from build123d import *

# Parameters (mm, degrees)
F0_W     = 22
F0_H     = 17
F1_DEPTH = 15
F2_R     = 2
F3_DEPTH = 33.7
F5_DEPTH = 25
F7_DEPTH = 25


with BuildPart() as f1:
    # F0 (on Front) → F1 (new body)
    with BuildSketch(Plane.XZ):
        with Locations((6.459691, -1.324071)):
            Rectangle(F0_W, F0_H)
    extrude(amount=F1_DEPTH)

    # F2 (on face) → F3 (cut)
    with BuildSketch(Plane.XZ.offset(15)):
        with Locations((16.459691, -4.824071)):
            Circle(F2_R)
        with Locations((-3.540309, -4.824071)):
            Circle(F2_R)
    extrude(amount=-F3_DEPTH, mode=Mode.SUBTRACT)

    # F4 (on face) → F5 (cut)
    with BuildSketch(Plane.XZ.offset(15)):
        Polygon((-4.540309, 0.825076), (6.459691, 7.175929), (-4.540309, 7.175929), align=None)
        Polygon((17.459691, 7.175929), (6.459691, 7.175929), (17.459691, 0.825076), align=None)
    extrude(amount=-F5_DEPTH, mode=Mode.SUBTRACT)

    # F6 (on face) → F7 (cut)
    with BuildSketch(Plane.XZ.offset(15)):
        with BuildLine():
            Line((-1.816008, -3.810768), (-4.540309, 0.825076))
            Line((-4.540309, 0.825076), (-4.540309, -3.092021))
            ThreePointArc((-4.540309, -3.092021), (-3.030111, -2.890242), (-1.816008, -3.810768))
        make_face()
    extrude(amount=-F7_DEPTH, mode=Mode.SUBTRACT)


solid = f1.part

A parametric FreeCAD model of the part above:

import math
import FreeCAD as App
import Part
import Sketcher
Q = App.Units.Quantity


def add_polygon(sketch, points):
    """Adds a closed chain of lines whose ends are joined by coincident constraints."""
    first, n = sketch.GeometryCount, len(points)
    for a, b in zip(points, points[1:] + points[:1]):
        sketch.addGeometry(Part.LineSegment(App.Vector(*a, 0), App.Vector(*b, 0)), False)
    for i in range(n):
        sketch.addConstraint(Sketcher.Constraint("Coincident", first + i, 2, first + (i + 1) % n, 1))

doc = App.newDocument("Part")
body = doc.addObject("PartDesign::Body", "Body")

sketch1 = body.newObject("Sketcher::SketchObject", "Sketch")
sketch1.AttachmentSupport = (doc.getObject("XZ_Plane"), [""])
sketch1.MapMode = "FlatFace"
add_polygon(sketch1, [(-4.540309, 7.175929), (-4.540309, -9.824071), (17.459691, -9.824071), (17.459691, 7.175929)])
sketch1.addConstraint([
    Sketcher.Constraint("Vertical", 0),
    Sketcher.Constraint("Horizontal", 1),
    Sketcher.Constraint("Vertical", 2),
    Sketcher.Constraint("Horizontal", 3),
    Sketcher.Constraint("DistanceX", 1, 1, 1, 2, 22.0),
    Sketcher.Constraint("DistanceY", 0, 2, 0, 1, 17.0),
    Sketcher.Constraint("DistanceX", 0, 2, -1, 1, 4.540309),
    Sketcher.Constraint("DistanceY", 0, 2, -1, 1, 9.824071),
])
pad1 = body.newObject("PartDesign::Pad", "Pad")
pad1.Profile = sketch1
pad1.Length = 15

sketch2 = body.newObject("Sketcher::SketchObject", "Sketch001")
sketch2.AttachmentSupport = (doc.getObject("XZ_Plane"), [""])
sketch2.MapMode = "FlatFace"
sketch2.AttachmentOffset = App.Placement(App.Vector(0, 0, 15), App.Rotation())
sketch2.addGeometry([
    Part.Circle(App.Vector(16.459691, -4.824071, 0), App.Vector(0, 0, 1), 2),
    Part.Circle(App.Vector(-3.540309, -4.824071, 0), App.Vector(0, 0, 1), 2),
], False)
sketch2.addConstraint([
    Sketcher.Constraint("Equal", 0, 1),
    Sketcher.Constraint("Horizontal", 0, 3, 1, 3),
    Sketcher.Constraint("Diameter", 0, 4.0),
    Sketcher.Constraint("DistanceX", 1, 3, 0, 3, 20.0),
    Sketcher.Constraint("DistanceX", -1, 1, 0, 3, 16.459691),
    Sketcher.Constraint("DistanceY", 0, 3, -1, 1, 4.824071),
])
pocket1 = body.newObject("PartDesign::Pocket", "Pocket")
pocket1.Profile = sketch2
pocket1.Length = 33.7

sketch3 = body.newObject("Sketcher::SketchObject", "Sketch002")
sketch3.AttachmentSupport = (doc.getObject("XZ_Plane"), [""])
sketch3.MapMode = "FlatFace"
sketch3.AttachmentOffset = App.Placement(App.Vector(0, 0, 15), App.Rotation())
add_polygon(sketch3, [(-4.540309, 0.825076), (6.459691, 7.175929), (-4.540309, 7.175929)])
add_polygon(sketch3, [(17.459691, 7.175929), (6.459691, 7.175929), (17.459691, 0.825076)])
sketch3.addConstraint([
    Sketcher.Constraint("Horizontal", 1),
    Sketcher.Constraint("Vertical", 2),
    Sketcher.Constraint("Horizontal", 3),
    Sketcher.Constraint("Vertical", 5),
    Sketcher.Constraint("Coincident", 3, 2, 0, 2),
    Sketcher.Constraint("Horizontal", 2, 2, 4, 2),
    Sketcher.Constraint("Equal", 1, 3),
    Sketcher.Constraint("DistanceX", 1, 2, 1, 1, 11.0),
    Sketcher.Constraint("Angle", 0, Q("30 deg")),
    Sketcher.Constraint("DistanceX", -1, 1, 0, 2, 6.459691),
    Sketcher.Constraint("DistanceY", -1, 1, 0, 2, 7.175929),
])
pocket2 = body.newObject("PartDesign::Pocket", "Pocket001")
pocket2.Profile = sketch3
pocket2.Length = 25

sketch4 = body.newObject("Sketcher::SketchObject", "Sketch003")
sketch4.AttachmentSupport = (doc.getObject("XZ_Plane"), [""])
sketch4.MapMode = "FlatFace"
sketch4.AttachmentOffset = App.Placement(App.Vector(0, 0, 15), App.Rotation())
sketch4.addGeometry([
    Part.LineSegment(App.Vector(-1.816008, -3.810768, 0), App.Vector(-4.540309, 0.825076, 0)),
    Part.LineSegment(App.Vector(-4.540309, 0.825076, 0), App.Vector(-4.540309, -3.092021, 0)),
    Part.ArcOfCircle(Part.Circle(App.Vector(-3.540309, -4.824071, 0), App.Vector(0, 0, 1), 2), math.radians(30.441064), math.radians(120.000003)),
], False)
sketch4.addConstraint([
    Sketcher.Constraint("Coincident", 0, 2, 1, 1),
    Sketcher.Constraint("Coincident", 1, 2, 2, 2),
    Sketcher.Constraint("Tangent", 2, 1, 0, 1),
    Sketcher.Constraint("Vertical", 1),
    Sketcher.Constraint("Radius", 2, 2.0),
    Sketcher.Constraint("DistanceX", 0, 2, 2, 3, 1.0),
    Sketcher.Constraint("DistanceX", 2, 3, 2, 1, 1.724301),
    Sketcher.Constraint("DistanceX", 2, 3, -1, 1, 3.540309),
    Sketcher.Constraint("DistanceY", 2, 3, -1, 1, 4.824071),
])
pocket3 = body.newObject("PartDesign::Pocket", "Pocket002")
pocket3.Profile = sketch4
pocket3.Length = 25

doc.recompute()
